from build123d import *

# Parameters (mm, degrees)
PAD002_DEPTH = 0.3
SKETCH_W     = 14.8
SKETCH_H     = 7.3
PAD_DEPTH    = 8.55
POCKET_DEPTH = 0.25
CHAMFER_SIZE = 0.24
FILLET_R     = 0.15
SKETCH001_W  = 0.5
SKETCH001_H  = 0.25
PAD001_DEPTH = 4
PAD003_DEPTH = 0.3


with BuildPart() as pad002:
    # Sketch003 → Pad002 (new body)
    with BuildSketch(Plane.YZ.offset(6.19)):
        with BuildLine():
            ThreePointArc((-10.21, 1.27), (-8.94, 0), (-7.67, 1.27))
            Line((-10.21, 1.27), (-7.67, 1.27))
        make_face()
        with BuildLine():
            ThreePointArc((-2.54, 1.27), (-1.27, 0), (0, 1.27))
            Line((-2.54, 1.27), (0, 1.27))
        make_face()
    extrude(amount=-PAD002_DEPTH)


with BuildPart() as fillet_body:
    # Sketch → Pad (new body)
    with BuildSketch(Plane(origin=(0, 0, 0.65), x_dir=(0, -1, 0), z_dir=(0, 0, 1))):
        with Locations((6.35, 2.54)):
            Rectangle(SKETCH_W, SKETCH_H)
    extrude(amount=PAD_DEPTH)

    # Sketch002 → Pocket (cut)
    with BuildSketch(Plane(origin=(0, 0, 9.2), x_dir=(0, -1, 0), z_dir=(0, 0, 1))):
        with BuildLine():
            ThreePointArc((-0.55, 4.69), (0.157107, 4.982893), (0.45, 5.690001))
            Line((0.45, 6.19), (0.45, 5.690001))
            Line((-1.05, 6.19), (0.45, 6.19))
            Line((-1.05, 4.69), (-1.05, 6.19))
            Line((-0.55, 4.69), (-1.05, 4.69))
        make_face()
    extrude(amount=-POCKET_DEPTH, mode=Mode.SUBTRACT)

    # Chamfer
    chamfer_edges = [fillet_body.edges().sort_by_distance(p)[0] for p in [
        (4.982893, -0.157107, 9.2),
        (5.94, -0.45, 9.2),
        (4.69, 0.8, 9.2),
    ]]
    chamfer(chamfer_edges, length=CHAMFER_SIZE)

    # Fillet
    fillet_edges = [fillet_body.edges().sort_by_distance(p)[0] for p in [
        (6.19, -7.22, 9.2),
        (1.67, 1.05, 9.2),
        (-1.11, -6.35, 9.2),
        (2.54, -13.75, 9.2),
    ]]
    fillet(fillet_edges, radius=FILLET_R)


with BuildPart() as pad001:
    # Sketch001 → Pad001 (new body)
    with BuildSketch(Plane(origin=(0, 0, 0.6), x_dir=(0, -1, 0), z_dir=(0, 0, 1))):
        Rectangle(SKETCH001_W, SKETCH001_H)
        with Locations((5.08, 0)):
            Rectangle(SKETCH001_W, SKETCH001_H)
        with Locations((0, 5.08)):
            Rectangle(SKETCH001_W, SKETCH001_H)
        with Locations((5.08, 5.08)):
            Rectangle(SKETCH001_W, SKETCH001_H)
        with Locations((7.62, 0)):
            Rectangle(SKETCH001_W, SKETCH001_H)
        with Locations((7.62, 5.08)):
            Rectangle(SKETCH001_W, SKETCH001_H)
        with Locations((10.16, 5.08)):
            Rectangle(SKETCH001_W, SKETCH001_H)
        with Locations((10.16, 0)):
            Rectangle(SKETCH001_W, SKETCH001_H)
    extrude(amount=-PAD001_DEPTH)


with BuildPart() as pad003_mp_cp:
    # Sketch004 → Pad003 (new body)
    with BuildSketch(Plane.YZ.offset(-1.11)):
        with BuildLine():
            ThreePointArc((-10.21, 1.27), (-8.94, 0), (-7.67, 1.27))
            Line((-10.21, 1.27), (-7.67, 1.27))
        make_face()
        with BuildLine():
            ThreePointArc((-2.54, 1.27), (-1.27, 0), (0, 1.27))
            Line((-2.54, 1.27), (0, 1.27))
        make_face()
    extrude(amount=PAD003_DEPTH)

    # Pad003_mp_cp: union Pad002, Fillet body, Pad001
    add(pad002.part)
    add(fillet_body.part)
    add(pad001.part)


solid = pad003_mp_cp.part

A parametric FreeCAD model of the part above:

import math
import FreeCAD as App
import Part
import Sketcher


def edges_at(feature, points):
    """Names of the edges that pass closest to the given points."""
    edges = feature.Shape.Edges
    near = lambda p: min(range(len(edges)), key=lambda i: edges[i].distToShape(Part.Vertex(*p))[0])
    return sorted({f"Edge{near(p) + 1}" for p in points})

doc = App.newDocument("Part")
body = doc.addObject("PartDesign::Body", "Body")
body.AllowCompound = True

# Sketch on YZ plane
sketch1 = body.newObject("Sketcher::SketchObject", "Sketch")
sketch1.AttachmentSupport = (doc.getObject("YZ_Plane"), [""])
sketch1.MapMode = "FlatFace"
sketch1.AttachmentOffset = App.Placement(App.Vector(0, 0, 6.19), App.Rotation())
sketch1.addGeometry([
    Part.ArcOfCircle(Part.Circle(App.Vector(-8.94, 1.27, 0), App.Vector(0, 0, 1), 1.27), math.radians(180), math.radians(360)),
    Part.LineSegment(App.Vector(-7.67, 1.27, 0), App.Vector(-10.21, 1.27, 0)),
    Part.ArcOfCircle(Part.Circle(App.Vector(-1.27, 1.27, 0), App.Vector(0, 0, 1), 1.27), math.radians(180), math.radians(360)),
    Part.LineSegment(App.Vector(0, 1.27, 0), App.Vector(-2.54, 1.27, 0)),
], False)
sketch1.addConstraint([
    Sketcher.Constraint("Coincident", 0, 1, 1, 2),
    Sketcher.Constraint("Coincident", 1, 1, 0, 2),
    Sketcher.Constraint("Coincident", 2, 1, 3, 2),
    Sketcher.Constraint("Coincident", 3, 1, 2, 2),
    Sketcher.Constraint("Horizontal", 1),
    Sketcher.Constraint("Horizontal", 3),
    Sketcher.Constraint("Equal", 0, 2),
    Sketcher.Constraint("PointOnObject", 3, 1, -2),
    Sketcher.Constraint("Horizontal", 0, 3, 2, 3),
    Sketcher.Constraint("Horizontal", 2, 3, 0, 1),
    Sketcher.Constraint("Horizontal", 1, 1, 2, 1),
    Sketcher.Constraint("Radius", 0, 1.27),
    Sketcher.Constraint("DistanceX", 1, 1, 2, 3, 6.4),
    Sketcher.Constraint("DistanceY", -1, 1, 0, 3, 1.27),
])
pad1 = body.newObject("PartDesign::Pad", "Pad")
pad1.Profile = sketch1
pad1.Length = 0.3
pad1.Reversed = True
body2 = doc.addObject("PartDesign::Body", "Body001")

# Sketch on XY plane
sketch2 = body2.newObject("Sketcher::SketchObject", "Sketch001")
sketch2.AttachmentSupport = (doc.getObject("XY_Plane001"), [""])
sketch2.MapMode = "FlatFace"
sketch2.AttachmentOffset = App.Placement(App.Vector(0, 0, 0.65), App.Rotation())
sketch2.addGeometry([
    Part.LineSegment(App.Vector(6.19, 1.05, 0), App.Vector(-1.11, 1.05, 0)),
    Part.LineSegment(App.Vector(-1.11, 1.05, 0), App.Vector(-1.11, -13.75, 0)),
    Part.LineSegment(App.Vector(-1.11, -13.75, 0), App.Vector(6.19, -13.75, 0)),
    Part.LineSegment(App.Vector(6.19, -13.75, 0), App.Vector(6.19, 1.05, 0)),
], False)
sketch2.addConstraint([
    Sketcher.Constraint("Coincident", 0, 2, 1, 1),
    Sketcher.Constraint("Coincident", 1, 2, 2, 1),
    Sketcher.Constraint("Coincident", 2, 2, 3, 1),
    Sketcher.Constraint("Coincident", 3, 2, 0, 1),
    Sketcher.Constraint("Horizontal", 0),
    Sketcher.Constraint("Vertical", 1),
    Sketcher.Constraint("Horizontal", 2),
    Sketcher.Constraint("Vertical", 3),
    Sketcher.Constraint("DistanceX", 0, 2, 0, 1, 7.3),
    Sketcher.Constraint("DistanceY", 1, 2, 1, 1, 14.8),
    Sketcher.Constraint("DistanceX", 0, 2, -1, 1, 1.11),
    Sketcher.Constraint("DistanceY", -1, 1, 0, 2, 1.05),
])
pad2 = body2.newObject("PartDesign::Pad", "Pad001")
pad2.Profile = sketch2
pad2.Length = 8.55

# Sketch on XY plane
sketch3 = body2.newObject("Sketcher::SketchObject", "Sketch002")
sketch3.AttachmentSupport = (doc.getObject("XY_Plane001"), [""])
sketch3.MapMode = "FlatFace"
sketch3.AttachmentOffset = App.Placement(App.Vector(0, 0, 9.2), App.Rotation())
sketch3.addGeometry([
    Part.ArcOfCircle(Part.Circle(App.Vector(5.689999, 0.549999, 0), App.Vector(0, 0, 1), 0.999999), math.radians(179.999957), math.radians(270.0001)),  # 0
    Part.LineSegment(App.Vector(5.690001, -0.45, 0), App.Vector(6.19, -0.45, 0)),  # 1
    Part.LineSegment(App.Vector(6.19, -0.45, 0), App.Vector(6.19, 1.05, 0)),  # 2
    Part.LineSegment(App.Vector(6.19, 1.05, 0), App.Vector(4.69, 1.05, 0)),  # 3
    Part.LineSegment(App.Vector(4.69, 1.05, 0), App.Vector(4.69, 0.55, 0)),  # 4
], False)
sketch3.addConstraint([
    Sketcher.Constraint("Tangent", 0, 2, 1, 1),
    Sketcher.Constraint("Coincident", 1, 2, 2, 1),
    Sketcher.Constraint("Coincident", 2, 2, 3, 1),
    Sketcher.Constraint("Coincident", 3, 2, 4, 1),
    Sketcher.Constraint("Tangent", 4, 2, 0, 1),
    Sketcher.Constraint("Horizontal", 1),
    Sketcher.Constraint("Vertical", 2),
    Sketcher.Constraint("Horizontal", 3),
    Sketcher.Constraint("Vertical", 4),
    Sketcher.Constraint("Equal", 3, 2),
    Sketcher.Constraint("Radius", 0, 0.999999),
    Sketcher.Constraint("DistanceX", 1, 1, 1, 2, 0.499999),
    Sketcher.Constraint("DistanceX", -1, 1, 0, 3, 5.689999),
    Sketcher.Constraint("DistanceY", -1, 1, 0, 3, 0.549999),
])
pocket1 = body2.newObject("PartDesign::Pocket", "Pocket")
pocket1.Profile = sketch3
pocket1.Length = 0.25
doc.recompute()

chamfer = body2.newObject("PartDesign::Chamfer", "Chamfer")
chamfer.Base = (pocket1, edges_at(pocket1, [(4.983, -0.157, 9.2), (5.94, -0.45, 9.2), (4.69, 0.8, 9.2)]))
chamfer.Size = 0.24
doc.recompute()

fillet = body2.newObject("PartDesign::Fillet", "Fillet")
fillet.Base = (chamfer, edges_at(chamfer, [
    (6.19, -7.22, 9.2),
    (1.67, 1.05, 9.2),
    (-1.11, -6.35, 9.2),
    (2.54, -13.75, 9.2),
]))
fillet.Radius = 0.15
body3 = doc.addObject("PartDesign::Body", "Body002")
body3.AllowCompound = True

# Sketch on XY plane
sketch4 = body3.newObject("Sketcher::SketchObject", "Sketch003")
sketch4.AttachmentSupport = (doc.getObject("XY_Plane002"), [""])
sketch4.MapMode = "FlatFace"
sketch4.AttachmentOffset = App.Placement(App.Vector(0, 0, 0.6), App.Rotation())
sketch4.addGeometry([
    Part.LineSegment(App.Vector(0.125, 0.25, 0), App.Vector(-0.125, 0.25, 0)),  # 0
    Part.LineSegment(App.Vector(-0.125, 0.25, 0), App.Vector(-0.125, -0.25, 0)),  # 1
    Part.LineSegment(App.Vector(-0.125, -0.25, 0), App.Vector(0.125, -0.25, 0)),  # 2
    Part.LineSegment(App.Vector(0.125, -0.25, 0), App.Vector(0.125, 0.25, 0)),  # 3
    Part.LineSegment(App.Vector(0.125, -4.83, 0), App.Vector(-0.125, -4.83, 0)),  # 4
    Part.LineSegment(App.Vector(-0.125, -4.83, 0), App.Vector(-0.125, -5.33, 0)),  # 5
    Part.LineSegment(App.Vector(-0.125, -5.33, 0), App.Vector(0.125, -5.33, 0)),  # 6
    Part.LineSegment(App.Vector(0.125, -5.33, 0), App.Vector(0.125, -4.83, 0)),  # 7
    Part.LineSegment(App.Vector(5.205, 0.25, 0), App.Vector(4.955, 0.25, 0)),  # 8
    Part.LineSegment(App.Vector(4.955, 0.25, 0), App.Vector(4.955, -0.25, 0)),  # 9
    Part.LineSegment(App.Vector(4.955, -0.25, 0), App.Vector(5.205, -0.25, 0)),  # 10
    Part.LineSegment(App.Vector(5.205, -0.25, 0), App.Vector(5.205, 0.25, 0)),  # 11
    Part.LineSegment(App.Vector(5.205, -4.83, 0), App.Vector(4.955, -4.83, 0)),  # 12
    Part.LineSegment(App.Vector(4.955, -4.83, 0), App.Vector(4.955, -5.33, 0)),  # 13
    Part.LineSegment(App.Vector(4.955, -5.33, 0), App.Vector(5.205, -5.33, 0)),  # 14
    Part.LineSegment(App.Vector(5.205, -5.33, 0), App.Vector(5.205, -4.83, 0)),  # 15
    Part.LineSegment(App.Vector(0.125, -7.37, 0), App.Vector(-0.125, -7.37, 0)),  # 16
    Part.LineSegment(App.Vector(-0.125, -7.37, 0), App.Vector(-0.125, -7.87, 0)),  # 17
    Part.LineSegment(App.Vector(-0.125, -7.87, 0), App.Vector(0.125, -7.87, 0)),  # 18
    Part.LineSegment(App.Vector(0.125, -7.87, 0), App.Vector(0.125, -7.37, 0)),  # 19
    Part.LineSegment(App.Vector(5.205, -7.37, 0), App.Vector(4.955, -7.37, 0)),  # 20
    Part.LineSegment(App.Vector(4.955, -7.37, 0), App.Vector(4.955, -7.87, 0)),  # 21
    Part.LineSegment(App.Vector(4.955, -7.87, 0), App.Vector(5.205, -7.87, 0)),  # 22
    Part.LineSegment(App.Vector(5.205, -7.87, 0), App.Vector(5.205, -7.37, 0)),  # 23
    Part.LineSegment(App.Vector(5.205, -9.91, 0), App.Vector(4.955, -9.91, 0)),  # 24
    Part.LineSegment(App.Vector(4.955, -9.91, 0), App.Vector(4.955, -10.41, 0)),  # 25
    Part.LineSegment(App.Vector(4.955, -10.41, 0), App.Vector(5.205, -10.41, 0)),  # 26
    Part.LineSegment(App.Vector(5.205, -10.41, 0), App.Vector(5.205, -9.91, 0)),  # 27
    Part.LineSegment(App.Vector(0.125, -9.91, 0), App.Vector(-0.125, -9.91, 0)),  # 28
    Part.LineSegment(App.Vector(-0.125, -9.91, 0), App.Vector(-0.125, -10.41, 0)),  # 29
    Part.LineSegment(App.Vector(-0.125, -10.41, 0), App.Vector(0.125, -10.41, 0)),  # 30
    Part.LineSegment(App.Vector(0.125, -10.41, 0), App.Vector(0.125, -9.91, 0)),  # 31
], False)
sketch4.addConstraint([
    Sketcher.Constraint("Coincident", 0, 2, 1, 1),
    Sketcher.Constraint("Coincident", 1, 2, 2, 1),
    Sketcher.Constraint("Coincident", 2, 2, 3, 1),
    Sketcher.Constraint("Coincident", 3, 2, 0, 1),
    Sketcher.Constraint("Coincident", 4, 2, 5, 1),
    Sketcher.Constraint("Coincident", 5, 2, 6, 1),
    Sketcher.Constraint("Coincident", 6, 2, 7, 1),
    Sketcher.Constraint("Coincident", 7, 2, 4, 1),
    Sketcher.Constraint("Coincident", 8, 2, 9, 1),
    Sketcher.Constraint("Coincident", 9, 2, 10, 1),
    Sketcher.Constraint("Coincident", 10, 2, 11, 1),
    Sketcher.Constraint("Coincident", 11, 2, 8, 1),
    Sketcher.Constraint("Coincident", 12, 2, 13, 1),
    Sketcher.Constraint("Coincident", 13, 2, 14, 1),
    Sketcher.Constraint("Coincident", 14, 2, 15, 1),
    Sketcher.Constraint("Coincident", 15, 2, 12, 1),
    Sketcher.Constraint("Coincident", 16, 2, 17, 1),
    Sketcher.Constraint("Coincident", 17, 2, 18, 1),
    Sketcher.Constraint("Coincident", 18, 2, 19, 1),
    Sketcher.Constraint("Coincident", 19, 2, 16, 1),
    Sketcher.Constraint("Coincident", 20, 2, 21, 1),
    Sketcher.Constraint("Coincident", 21, 2, 22, 1),
    Sketcher.Constraint("Coincident", 22, 2, 23, 1),
    Sketcher.Constraint("Coincident", 23, 2, 20, 1),
    Sketcher.Constraint("Coincident", 24, 2, 25, 1),
    Sketcher.Constraint("Coincident", 25, 2, 26, 1),
    Sketcher.Constraint("Coincident", 26, 2, 27, 1),
    Sketcher.Constraint("Coincident", 27, 2, 24, 1),
    Sketcher.Constraint("Coincident", 28, 2, 29, 1),
    Sketcher.Constraint("Coincident", 29, 2, 30, 1),
    Sketcher.Constraint("Coincident", 30, 2, 31, 1),
    Sketcher.Constraint("Coincident", 31, 2, 28, 1),
    Sketcher.Constraint("Horizontal", 0),
    Sketcher.Constraint("Vertical", 1),
    Sketcher.Constraint("Horizontal", 2),
    Sketcher.Constraint("Vertical", 3),
    Sketcher.Constraint("Horizontal", 4),
    Sketcher.Constraint("Vertical", 5),
    Sketcher.Constraint("Horizontal", 6),
    Sketcher.Constraint("Vertical", 7),
    Sketcher.Constraint("Horizontal", 8),
    Sketcher.Constraint("Vertical", 9),
    Sketcher.Constraint("Horizontal", 10),
    Sketcher.Constraint("Vertical", 11),
    Sketcher.Constraint("Horizontal", 12),
    Sketcher.Constraint("Vertical", 13),
    Sketcher.Constraint("Horizontal", 14),
    Sketcher.Constraint("Vertical", 15),
    Sketcher.Constraint("Horizontal", 16),
    Sketcher.Constraint("Vertical", 17),
    Sketcher.Constraint("Horizontal", 18),
    Sketcher.Constraint("Vertical", 19),
    Sketcher.Constraint("Horizontal", 20),
    Sketcher.Constraint("Vertical", 21),
    Sketcher.Constraint("Horizontal", 22),
    Sketcher.Constraint("Vertical", 23),
    Sketcher.Constraint("Horizontal", 24),
    Sketcher.Constraint("Vertical", 25),
    Sketcher.Constraint("Horizontal", 26),
    Sketcher.Constraint("Vertical", 27),
    Sketcher.Constraint("Horizontal", 28),
    Sketcher.Constraint("Vertical", 29),
    Sketcher.Constraint("Horizontal", 30),
    Sketcher.Constraint("Vertical", 31),
    Sketcher.Constraint("Symmetric", 0, 2, 2, 2, -1, 1),
    Sketcher.Constraint("Horizontal", 3, 2, 8, 2),
    Sketcher.Constraint("Horizontal", 2, 2, 9, 2),
    Sketcher.Constraint("Horizontal", 7, 2, 12, 2),
    Sketcher.Constraint("Horizontal", 6, 2, 13, 2),
    Sketcher.Constraint("Horizontal", 19, 2, 20, 2),
    Sketcher.Constraint("Horizontal", 18, 2, 21, 2),
    Sketcher.Constraint("Horizontal", 27, 2, 28, 2),
    Sketcher.Constraint("Horizontal", 26, 2, 29, 2),
    Sketcher.Constraint("Vertical", 1, 2, 4, 2),
    Sketcher.Constraint("Vertical", 3, 2, 6, 2),
    Sketcher.Constraint("Vertical", 9, 2, 12, 2),
    Sketcher.Constraint("Vertical", 11, 2, 14, 2),
    Sketcher.Constraint("Vertical", 5, 2, 16, 2),
    Sketcher.Constraint("Vertical", 7, 2, 18, 2),
    Sketcher.Constraint("Vertical", 13, 2, 20, 2),
    Sketcher.Constraint("Vertical", 15, 2, 22, 2),
    Sketcher.Constraint("Vertical", 21, 2, 24, 2),
    Sketcher.Constraint("Vertical", 23, 2, 26, 2),
    Sketcher.Constraint("Vertical", 17, 2, 28, 2),
    Sketcher.Constraint("Vertical", 19, 2, 30, 2),
    Sketcher.Constraint("Equal", 6, 8),
    Sketcher.Constraint("Equal", 3, 5),
    Sketcher.Constraint("Equal", 15, 17),
    Sketcher.Constraint("Equal", 23, 25),
    Sketcher.Constraint("DistanceY", 1, 2, 1, 1, 0.5),
    Sketcher.Constraint("DistanceX", 0, 2, 0, 1, 0.25),
    Sketcher.Constraint("DistanceY", 4, 2, -1, 1, 4.83),
    Sketcher.Constraint("DistanceY", 16, 2, -1, 1, 7.37),
    Sketcher.Constraint("DistanceY", 24, 2, -1, 1, 9.91),
    Sketcher.Constraint("DistanceX", 3, 2, 8, 2, 4.83),
])
pad3 = body3.newObject("PartDesign::Pad", "Pad002")
pad3.Profile = sketch4
pad3.Length = 4
pad3.Reversed = True
body4 = doc.addObject("PartDesign::Body", "Body003")
body4.AllowCompound = True

# Sketch on YZ plane
sketch5 = body4.newObject("Sketcher::SketchObject", "Sketch004")
sketch5.AttachmentSupport = (doc.getObject("YZ_Plane003"), [""])
sketch5.MapMode = "FlatFace"
sketch5.AttachmentOffset = App.Placement(App.Vector(0, 0, -1.11), App.Rotation())
sketch5.addGeometry([
    Part.ArcOfCircle(Part.Circle(App.Vector(-8.94, 1.27, 0), App.Vector(0, 0, 1), 1.27), math.radians(180), math.radians(360)),
    Part.LineSegment(App.Vector(-7.67, 1.27, 0), App.Vector(-10.21, 1.27, 0)),
    Part.ArcOfCircle(Part.Circle(App.Vector(-1.27, 1.27, 0), App.Vector(0, 0, 1), 1.27), math.radians(180), math.radians(360)),
    Part.LineSegment(App.Vector(0, 1.27, 0), App.Vector(-2.54, 1.27, 0)),
], False)
sketch5.addConstraint([
    Sketcher.Constraint("Coincident", 0, 1, 1, 2),
    Sketcher.Constraint("Coincident", 1, 1, 0, 2),
    Sketcher.Constraint("Coincident", 2, 1, 3, 2),
    Sketcher.Constraint("Coincident", 3, 1, 2, 2),
    Sketcher.Constraint("Horizontal", 1),
    Sketcher.Constraint("Horizontal", 3),
    Sketcher.Constraint("Equal", 0, 2),
    Sketcher.Constraint("PointOnObject", 3, 1, -2),
    Sketcher.Constraint("Horizontal", 0, 3, 2, 3),
    Sketcher.Constraint("Horizontal", 2, 3, 0, 1),
    Sketcher.Constraint("Horizontal", 1, 1, 2, 1),
    Sketcher.Constraint("Radius", 0, 1.27),
    Sketcher.Constraint("DistanceX", 1, 1, 2, 3, 6.4),
    Sketcher.Constraint("DistanceY", -1, 1, 0, 3, 1.27),
])
pad4 = body4.newObject("PartDesign::Pad", "Pad003")
pad4.Profile = sketch5
pad4.Length = 0.3
doc.recompute()

boolean = body4.newObject("PartDesign::Boolean", "Boolean")
boolean.Type = "Fuse"
boolean.addObjects([body])
doc.recompute()

boolean2 = body4.newObject("PartDesign::Boolean", "Boolean001")
boolean2.Type = "Fuse"
boolean2.addObjects([body2])
doc.recompute()

boolean3 = body4.newObject("PartDesign::Boolean", "Boolean002")
boolean3.Type = "Fuse"
boolean3.addObjects([body3])

doc.recompute()
